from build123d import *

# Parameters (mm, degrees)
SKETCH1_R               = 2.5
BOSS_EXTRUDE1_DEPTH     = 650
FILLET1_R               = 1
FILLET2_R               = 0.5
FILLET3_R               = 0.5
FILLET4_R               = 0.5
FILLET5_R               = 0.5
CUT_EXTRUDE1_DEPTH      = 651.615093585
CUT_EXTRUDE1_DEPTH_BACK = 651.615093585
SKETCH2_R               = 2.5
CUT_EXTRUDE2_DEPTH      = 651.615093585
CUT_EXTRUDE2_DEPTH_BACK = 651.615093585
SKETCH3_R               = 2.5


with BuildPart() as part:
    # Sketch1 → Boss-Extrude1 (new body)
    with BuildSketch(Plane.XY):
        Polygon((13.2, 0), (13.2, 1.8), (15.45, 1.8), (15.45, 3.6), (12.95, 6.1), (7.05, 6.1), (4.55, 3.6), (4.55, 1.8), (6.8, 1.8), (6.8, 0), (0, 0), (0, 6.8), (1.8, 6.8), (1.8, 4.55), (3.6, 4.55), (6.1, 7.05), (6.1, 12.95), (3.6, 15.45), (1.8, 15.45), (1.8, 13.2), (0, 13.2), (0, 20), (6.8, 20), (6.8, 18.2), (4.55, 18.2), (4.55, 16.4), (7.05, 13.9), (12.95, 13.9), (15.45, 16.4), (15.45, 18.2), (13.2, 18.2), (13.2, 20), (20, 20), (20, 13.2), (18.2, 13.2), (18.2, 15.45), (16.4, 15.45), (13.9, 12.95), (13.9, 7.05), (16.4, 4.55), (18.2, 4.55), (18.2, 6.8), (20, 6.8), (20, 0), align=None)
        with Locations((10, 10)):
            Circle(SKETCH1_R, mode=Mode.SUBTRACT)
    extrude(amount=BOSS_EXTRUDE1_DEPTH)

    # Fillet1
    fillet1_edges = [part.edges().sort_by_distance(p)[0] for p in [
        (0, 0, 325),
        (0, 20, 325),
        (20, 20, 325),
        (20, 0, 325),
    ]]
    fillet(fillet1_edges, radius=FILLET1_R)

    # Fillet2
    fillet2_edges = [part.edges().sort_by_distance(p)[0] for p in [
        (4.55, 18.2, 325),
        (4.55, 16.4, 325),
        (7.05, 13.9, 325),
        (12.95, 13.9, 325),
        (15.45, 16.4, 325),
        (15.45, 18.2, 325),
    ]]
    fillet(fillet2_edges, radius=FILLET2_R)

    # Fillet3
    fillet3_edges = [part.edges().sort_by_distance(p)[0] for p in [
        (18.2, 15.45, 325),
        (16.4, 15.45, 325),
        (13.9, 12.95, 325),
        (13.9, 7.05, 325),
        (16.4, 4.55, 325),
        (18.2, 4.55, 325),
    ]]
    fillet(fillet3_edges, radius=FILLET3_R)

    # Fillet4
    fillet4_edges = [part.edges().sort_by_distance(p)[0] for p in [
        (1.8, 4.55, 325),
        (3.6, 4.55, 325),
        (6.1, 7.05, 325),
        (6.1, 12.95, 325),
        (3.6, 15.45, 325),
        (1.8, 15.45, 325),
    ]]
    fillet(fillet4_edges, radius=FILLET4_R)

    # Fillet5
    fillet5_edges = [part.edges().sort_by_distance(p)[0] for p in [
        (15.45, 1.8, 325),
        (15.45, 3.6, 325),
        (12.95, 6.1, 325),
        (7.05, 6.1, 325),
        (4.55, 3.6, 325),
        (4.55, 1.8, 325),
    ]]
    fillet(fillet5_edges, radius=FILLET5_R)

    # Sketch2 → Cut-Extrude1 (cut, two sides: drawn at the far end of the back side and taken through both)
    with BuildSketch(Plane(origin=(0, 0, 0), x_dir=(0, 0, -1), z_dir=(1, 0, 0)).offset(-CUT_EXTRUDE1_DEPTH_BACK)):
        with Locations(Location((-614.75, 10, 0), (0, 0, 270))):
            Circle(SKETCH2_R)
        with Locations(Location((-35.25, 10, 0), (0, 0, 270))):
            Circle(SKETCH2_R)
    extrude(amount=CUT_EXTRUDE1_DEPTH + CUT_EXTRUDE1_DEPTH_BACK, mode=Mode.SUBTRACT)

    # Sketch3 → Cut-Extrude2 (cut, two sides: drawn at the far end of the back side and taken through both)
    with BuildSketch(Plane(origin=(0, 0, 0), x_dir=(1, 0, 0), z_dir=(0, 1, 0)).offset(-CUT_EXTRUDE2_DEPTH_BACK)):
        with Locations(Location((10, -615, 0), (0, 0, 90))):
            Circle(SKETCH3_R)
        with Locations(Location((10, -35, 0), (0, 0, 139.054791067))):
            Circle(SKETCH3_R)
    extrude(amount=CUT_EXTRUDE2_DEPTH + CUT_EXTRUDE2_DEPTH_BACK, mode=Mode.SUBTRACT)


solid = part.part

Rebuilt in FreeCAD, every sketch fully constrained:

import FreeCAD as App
import Part
import Sketcher


def edges_at(feature, points):
    """Names of the edges that pass closest to the given points."""
    edges = feature.Shape.Edges
    near = lambda p: min(range(len(edges)), key=lambda i: edges[i].distToShape(Part.Vertex(*p))[0])
    return sorted({f"Edge{near(p) + 1}" for p in points})

doc = App.newDocument("Part")
params = doc.addObject("Spreadsheet::Sheet", "Params")
for row, (alias, value) in enumerate([
    ("sketch1_diameter", "5 mm"),
    ("sketch1_width", "6.8 mm"),
    ("sketch1_width2", "1.8 mm"),
    ("sketch1_width3", "5.9 mm"),
    ("sketch1_width4", "2.25 mm"),
    ("pad1_length", "650 mm"),
    ("fillet_radius", "1 mm"),
    ("fillet2_radius", "0.5 mm"),
    ("fillet3_radius", "0.5 mm"),
    ("fillet4_radius", "0.5 mm"),
    ("fillet5_radius", "0.5 mm"),
    ("sketch2_diameter", "5 mm"),
    ("sketch3_diameter", "5 mm"),
], start=1):
    params.set(f"A{row}", alias)
    params.set(f"B{row}", "=" + value)
    params.setAlias(f"B{row}", alias)

body = doc.addObject("PartDesign::Body", "Body")

sketch1 = body.newObject("Sketcher::SketchObject", "Sketch")
sketch1.AttachmentSupport = (doc.getObject("XY_Plane"), [""])
sketch1.MapMode = "FlatFace"
sketch1.addGeometry([
    Part.LineSegment(App.Vector(13.2, 1.8, 0), App.Vector(13.2, 0, 0)),
    Part.LineSegment(App.Vector(13.2, 0, 0), App.Vector(20, 0, 0)),
    Part.LineSegment(App.Vector(20, 0, 0), App.Vector(20, 6.8, 0)),
    Part.LineSegment(App.Vector(20, 6.8, 0), App.Vector(18.2, 6.8, 0)),
    Part.LineSegment(App.Vector(18.2, 6.8, 0), App.Vector(18.2, 4.55, 0)),
    Part.LineSegment(App.Vector(18.2, 4.55, 0), App.Vector(16.4, 4.55, 0)),
    Part.LineSegment(App.Vector(16.4, 4.55, 0), App.Vector(13.9, 7.05, 0)),
    Part.LineSegment(App.Vector(13.9, 7.05, 0), App.Vector(13.9, 12.95, 0)),
    Part.LineSegment(App.Vector(13.9, 12.95, 0), App.Vector(16.4, 15.45, 0)),
    Part.LineSegment(App.Vector(16.4, 15.45, 0), App.Vector(18.2, 15.45, 0)),
    Part.LineSegment(App.Vector(18.2, 15.45, 0), App.Vector(18.2, 13.2, 0)),
    Part.LineSegment(App.Vector(18.2, 13.2, 0), App.Vector(20, 13.2, 0)),
    Part.LineSegment(App.Vector(20, 13.2, 0), App.Vector(20, 20, 0)),
    Part.LineSegment(App.Vector(20, 20, 0), App.Vector(13.2, 20, 0)),
    Part.LineSegment(App.Vector(13.2, 20, 0), App.Vector(13.2, 18.2, 0)),
    Part.LineSegment(App.Vector(13.2, 18.2, 0), App.Vector(15.45, 18.2, 0)),
    Part.LineSegment(App.Vector(15.45, 18.2, 0), App.Vector(15.45, 16.4, 0)),
    Part.LineSegment(App.Vector(15.45, 16.4, 0), App.Vector(12.95, 13.9, 0)),
    Part.LineSegment(App.Vector(12.95, 13.9, 0), App.Vector(7.05, 13.9, 0)),
    Part.LineSegment(App.Vector(7.05, 13.9, 0), App.Vector(4.55, 16.4, 0)),
    Part.LineSegment(App.Vector(4.55, 16.4, 0), App.Vector(4.55, 18.2, 0)),
    Part.LineSegment(App.Vector(4.55, 18.2, 0), App.Vector(6.8, 18.2, 0)),
    Part.LineSegment(App.Vector(6.8, 18.2, 0), App.Vector(6.8, 20, 0)),
    Part.LineSegment(App.Vector(6.8, 20, 0), App.Vector(0, 20, 0)),
    Part.LineSegment(App.Vector(0, 20, 0), App.Vector(0, 13.2, 0)),
    Part.LineSegment(App.Vector(0, 13.2, 0), App.Vector(1.8, 13.2, 0)),
    Part.LineSegment(App.Vector(1.8, 13.2, 0), App.Vector(1.8, 15.45, 0)),
    Part.LineSegment(App.Vector(1.8, 15.45, 0), App.Vector(3.6, 15.45, 0)),
    Part.LineSegment(App.Vector(3.6, 15.45, 0), App.Vector(6.1, 12.95, 0)),
    Part.LineSegment(App.Vector(6.1, 12.95, 0), App.Vector(6.1, 7.05, 0)),
    Part.LineSegment(App.Vector(6.1, 7.05, 0), App.Vector(3.6, 4.55, 0)),
    Part.LineSegment(App.Vector(3.6, 4.55, 0), App.Vector(1.8, 4.55, 0)),
    Part.LineSegment(App.Vector(1.8, 4.55, 0), App.Vector(1.8, 6.8, 0)),
    Part.LineSegment(App.Vector(1.8, 6.8, 0), App.Vector(0, 6.8, 0)),
    Part.LineSegment(App.Vector(0, 6.8, 0), App.Vector(0, 0, 0)),
    Part.LineSegment(App.Vector(0, 0, 0), App.Vector(6.8, 0, 0)),
    Part.LineSegment(App.Vector(6.8, 0, 0), App.Vector(6.8, 1.8, 0)),
    Part.LineSegment(App.Vector(6.8, 1.8, 0), App.Vector(4.55, 1.8, 0)),
    Part.LineSegment(App.Vector(4.55, 1.8, 0), App.Vector(4.55, 3.6, 0)),
    Part.LineSegment(App.Vector(4.55, 3.6, 0), App.Vector(7.05, 6.1, 0)),
    Part.LineSegment(App.Vector(7.05, 6.1, 0), App.Vector(12.95, 6.1, 0)),
    Part.LineSegment(App.Vector(12.95, 6.1, 0), App.Vector(15.45, 3.6, 0)),
    Part.LineSegment(App.Vector(15.45, 3.6, 0), App.Vector(15.45, 1.8, 0)),
    Part.LineSegment(App.Vector(15.45, 1.8, 0), App.Vector(13.2, 1.8, 0)),
    Part.Circle(App.Vector(10, 10, 0), App.Vector(0, 0, 1), 2.5),
], False)
sketch1.addConstraint([
    Sketcher.Constraint("Coincident", 0, 2, 1, 1),
    Sketcher.Constraint("Coincident", 1, 2, 2, 1),
    Sketcher.Constraint("Coincident", 2, 2, 3, 1),
    Sketcher.Constraint("Coincident", 3, 2, 4, 1),
    Sketcher.Constraint("Coincident", 4, 2, 5, 1),
    Sketcher.Constraint("Coincident", 5, 2, 6, 1),
    Sketcher.Constraint("Coincident", 6, 2, 7, 1),
    Sketcher.Constraint("Coincident", 7, 2, 8, 1),
    Sketcher.Constraint("Coincident", 8, 2, 9, 1),
    Sketcher.Constraint("Coincident", 9, 2, 10, 1),
    Sketcher.Constraint("Coincident", 10, 2, 11, 1),
    Sketcher.Constraint("Coincident", 11, 2, 12, 1),
    Sketcher.Constraint("Coincident", 12, 2, 13, 1),
    Sketcher.Constraint("Coincident", 13, 2, 14, 1),
    Sketcher.Constraint("Coincident", 14, 2, 15, 1),
    Sketcher.Constraint("Coincident", 15, 2, 16, 1),
    Sketcher.Constraint("Coincident", 16, 2, 17, 1),
    Sketcher.Constraint("Coincident", 17, 2, 18, 1),
    Sketcher.Constraint("Coincident", 18, 2, 19, 1),
    Sketcher.Constraint("Coincident", 19, 2, 20, 1),
    Sketcher.Constraint("Coincident", 20, 2, 21, 1),
    Sketcher.Constraint("Coincident", 21, 2, 22, 1),
    Sketcher.Constraint("Coincident", 22, 2, 23, 1),
    Sketcher.Constraint("Coincident", 23, 2, 24, 1),
    Sketcher.Constraint("Coincident", 24, 2, 25, 1),
    Sketcher.Constraint("Coincident", 25, 2, 26, 1),
    Sketcher.Constraint("Coincident", 26, 2, 27, 1),
    Sketcher.Constraint("Coincident", 27, 2, 28, 1),
    Sketcher.Constraint("Coincident", 28, 2, 29, 1),
    Sketcher.Constraint("Coincident", 29, 2, 30, 1),
    Sketcher.Constraint("Coincident", 30, 2, 31, 1),
    Sketcher.Constraint("Coincident", 31, 2, 32, 1),
    Sketcher.Constraint("Coincident", 32, 2, 33, 1),
    Sketcher.Constraint("Coincident", 33, 2, 34, 1),
    Sketcher.Constraint("Coincident", 34, 2, 35, 1),
    Sketcher.Constraint("Coincident", 35, 2, 36, 1),
    Sketcher.Constraint("Coincident", 36, 2, 37, 1),
    Sketcher.Constraint("Coincident", 37, 2, 38, 1),
    Sketcher.Constraint("Coincident", 38, 2, 39, 1),
    Sketcher.Constraint("Coincident", 39, 2, 40, 1),
    Sketcher.Constraint("Coincident", 40, 2, 41, 1),
    Sketcher.Constraint("Coincident", 41, 2, 42, 1),
    Sketcher.Constraint("Coincident", 42, 2, 43, 1),
    Sketcher.Constraint("Coincident", 43, 2, 0, 1),
    Sketcher.Constraint("Vertical", 0),
    Sketcher.Constraint("Horizontal", 1),
    Sketcher.Constraint("Vertical", 2),
    Sketcher.Constraint("Horizontal", 3),
    Sketcher.Constraint("Vertical", 4),
    Sketcher.Constraint("Horizontal", 5),
    Sketcher.Constraint("Vertical", 7),
    Sketcher.Constraint("Horizontal", 9),
    Sketcher.Constraint("Vertical", 10),
    Sketcher.Constraint("Horizontal", 11),
    Sketcher.Constraint("Vertical", 12),
    Sketcher.Constraint("Horizontal", 13),
    Sketcher.Constraint("Vertical", 14),
    Sketcher.Constraint("Horizontal", 15),
    Sketcher.Constraint("Vertical", 16),
    Sketcher.Constraint("Horizontal", 18),
    Sketcher.Constraint("Vertical", 20),
    Sketcher.Constraint("Horizontal", 21),
    Sketcher.Constraint("Vertical", 22),
    Sketcher.Constraint("Horizontal", 23),
    Sketcher.Constraint("Vertical", 24),
    Sketcher.Constraint("Horizontal", 25),
    Sketcher.Constraint("Vertical", 26),
    Sketcher.Constraint("Horizontal", 27),
    Sketcher.Constraint("Vertical", 29),
    Sketcher.Constraint("Horizontal", 31),
    Sketcher.Constraint("Vertical", 32),
    Sketcher.Constraint("Horizontal", 33),
    Sketcher.Constraint("Vertical", 34),
    Sketcher.Constraint("Horizontal", 35),
    Sketcher.Constraint("Vertical", 36),
    Sketcher.Constraint("Horizontal", 37),
    Sketcher.Constraint("Vertical", 38),
    Sketcher.Constraint("Horizontal", 40),
    Sketcher.Constraint("Vertical", 42),
    Sketcher.Constraint("Horizontal", 43),
    Sketcher.Constraint("Coincident", 34, 2, -1, 1),
    Sketcher.Constraint("PointOnObject", 0, 2, -1),
    Sketcher.Constraint("PointOnObject", 23, 2, -2),
    Sketcher.Constraint("Perpendicular", 6, 8),
    Sketcher.Constraint("Parallel", 8, 17),
    Sketcher.Constraint("Perpendicular", 17, 19),
    Sketcher.Constraint("Parallel", 19, 28),
    Sketcher.Constraint("Perpendicular", 28, 30),
    Sketcher.Constraint("Parallel", 30, 39),
    Sketcher.Constraint("Perpendicular", 39, 41),
    Sketcher.Constraint("Horizontal", 16, 2, 19, 2),
    Sketcher.Constraint("Horizontal", 15, 2, 20, 2),
    Sketcher.Constraint("Horizontal", 13, 2, 22, 2),
    Sketcher.Constraint("Horizontal", 11, 2, 24, 2),
    Sketcher.Constraint("Horizontal", 9, 2, 26, 2),
    Sketcher.Constraint("Horizontal", 7, 2, 28, 2),
    Sketcher.Constraint("Horizontal", 6, 2, 29, 2),
    Sketcher.Constraint("Horizontal", 5, 2, 30, 2),
    Sketcher.Constraint("Horizontal", 3, 2, 32, 2),
    Sketcher.Constraint("Horizontal", 38, 2, 41, 2),
    Sketcher.Constraint("Horizontal", 37, 2, 42, 2),
    Sketcher.Constraint("Vertical", 5, 2, 8, 2),
    Sketcher.Constraint("Vertical", 4, 2, 9, 2),
    Sketcher.Constraint("Vertical", 2, 2, 11, 2),
    Sketcher.Constraint("Vertical", 0, 2, 13, 2),
    Sketcher.Constraint("Vertical", 27, 2, 30, 2),
    Sketcher.Constraint("Vertical", 26, 2, 31, 2),
    Sketcher.Constraint("Vertical", 22, 2, 35, 2),
    Sketcher.Constraint("Vertical", 20, 2, 37, 2),
    Sketcher.Constraint("Vertical", 18, 2, 39, 2),
    Sketcher.Constraint("Vertical", 17, 2, 40, 2),
    Sketcher.Constraint("Equal", 3, 5),
    Sketcher.Constraint("Equal", 15, 21),
    Sketcher.Constraint("Equal", 13, 23),
    Sketcher.Constraint("Equal", 11, 25),
    Sketcher.Constraint("Equal", 25, 27),
    Sketcher.Constraint("Equal", 33, 0),
    Sketcher.Constraint("Equal", 35, 2),
    Sketcher.Constraint("Equal", 43, 4),
    Sketcher.Constraint("Equal", 40, 7),
    Sketcher.Constraint("Equal", 4, 10),
    Sketcher.Constraint("Equal", 2, 12),
    Sketcher.Constraint("Equal", 0, 14),
    Sketcher.Constraint("Equal", 14, 16),
    Sketcher.Constraint("Equal", 36, 38),
    Sketcher.Constraint("Equal", 8, 17),
    Sketcher.Constraint("Diameter", 44, 5.0),
    Sketcher.Constraint("DistanceX", 1, 1, 1, 2, 6.8),
    Sketcher.Constraint("DistanceX", 3, 2, 3, 1, 1.8),
    Sketcher.Constraint("DistanceX", 18, 2, 18, 1, 5.9),
    Sketcher.Constraint("DistanceX", -1, 1, 44, 3, 10.0),
    Sketcher.Constraint("DistanceY", -1, 1, 44, 3, 10.0),
    Sketcher.Constraint("DistanceX", -1, 1, 1, 2, 20.0),
    Sketcher.Constraint("DistanceX", 15, 1, 15, 2, 2.25),
])
sketch1.setExpression("Constraints[126]", "Params.sketch1_diameter")
sketch1.setExpression("Constraints[127]", "Params.sketch1_width")
sketch1.setExpression("Constraints[128]", "Params.sketch1_width2")
sketch1.setExpression("Constraints[129]", "Params.sketch1_width3")
sketch1.setExpression("Constraints[133]", "Params.sketch1_width4")
pad1 = body.newObject("PartDesign::Pad", "Pad")
pad1.Profile = sketch1
pad1.setExpression("Length", "Params.pad1_length")
doc.recompute()

fillet = body.newObject("PartDesign::Fillet", "Fillet")
fillet.Base = (pad1, edges_at(pad1, [
    (0, 0, 325),
    (0, 20, 325),
    (20, 20, 325),
    (20, 0, 325),
]))
fillet.setExpression("Radius", "Params.fillet_radius")
doc.recompute()

fillet2 = body.newObject("PartDesign::Fillet", "Fillet001")
fillet2.Base = (fillet, edges_at(fillet, [
    (4.55, 18.2, 325),
    (4.55, 16.4, 325),
    (7.05, 13.9, 325),
    (12.95, 13.9, 325),
    (15.45, 16.4, 325),
    (15.45, 18.2, 325),
]))
fillet2.setExpression("Radius", "Params.fillet2_radius")
doc.recompute()

fillet3 = body.newObject("PartDesign::Fillet", "Fillet002")
fillet3.Base = (fillet2, edges_at(fillet2, [
    (18.2, 15.45, 325),
    (16.4, 15.45, 325),
    (13.9, 12.95, 325),
    (13.9, 7.05, 325),
    (16.4, 4.55, 325),
    (18.2, 4.55, 325),
]))
fillet3.setExpression("Radius", "Params.fillet3_radius")
doc.recompute()

fillet4 = body.newObject("PartDesign::Fillet", "Fillet003")
fillet4.Base = (fillet3, edges_at(fillet3, [
    (1.8, 4.55, 325),
    (3.6, 4.55, 325),
    (6.1, 7.05, 325),
    (6.1, 12.95, 325),
    (3.6, 15.45, 325),
    (1.8, 15.45, 325),
]))
fillet4.setExpression("Radius", "Params.fillet4_radius")
doc.recompute()

fillet5 = body.newObject("PartDesign::Fillet", "Fillet004")
fillet5.Base = (fillet4, edges_at(fillet4, [
    (15.45, 1.8, 325),
    (15.45, 3.6, 325),
    (12.95, 6.1, 325),
    (7.05, 6.1, 325),
    (4.55, 3.6, 325),
    (4.55, 1.8, 325),
]))
fillet5.setExpression("Radius", "Params.fillet5_radius")

sketch2 = body.newObject("Sketcher::SketchObject", "Sketch001")
sketch2.AttachmentSupport = (doc.getObject("YZ_Plane"), [""])
sketch2.MapMode = "FlatFace"
sketch2.addGeometry([
    Part.Circle(App.Vector(10, 614.75, 0), App.Vector(0, 0, 1), 2.5),
    Part.Circle(App.Vector(10, 35.25, 0), App.Vector(0, 0, 1), 2.5),
], False)
sketch2.addConstraint([
    Sketcher.Constraint("Equal", 0, 1),
    Sketcher.Constraint("Vertical", 0, 3, 1, 3),
    Sketcher.Constraint("Diameter", 0, 5.0),
    Sketcher.Constraint("DistanceX", -1, 1, 0, 3, 10.0),
    Sketcher.Constraint("DistanceY", 1, 3, 0, 3, 579.5),
    Sketcher.Constraint("DistanceY", -1, 1, 0, 3, 614.75),
])
sketch2.setExpression("Constraints[2]", "Params.sketch2_diameter")
pocket1 = body.newObject("PartDesign::Pocket", "Pocket")
pocket1.Profile = sketch2
pocket1.Type = "ThroughAll"
pocket1.Midplane = True

sketch3 = body.newObject("Sketcher::SketchObject", "Sketch002")
sketch3.AttachmentSupport = (doc.getObject("XZ_Plane"), [""])
sketch3.MapMode = "FlatFace"
sketch3.addGeometry([
    Part.Circle(App.Vector(10, 615, 0), App.Vector(0, 0, 1), 2.5),
    Part.Circle(App.Vector(10, 35, 0), App.Vector(0, 0, 1), 2.5),
], False)
sketch3.addConstraint([
    Sketcher.Constraint("Equal", 0, 1),
    Sketcher.Constraint("Vertical", 0, 3, 1, 3),
    Sketcher.Constraint("Diameter", 0, 5.0),
    Sketcher.Constraint("DistanceX", -1, 1, 0, 3, 10.0),
    Sketcher.Constraint("DistanceY", -1, 1, 0, 3, 615.0),
    Sketcher.Constraint("DistanceY", -1, 1, 1, 3, 35.0),
])
sketch3.setExpression("Constraints[2]", "Params.sketch3_diameter")
pocket2 = body.newObject("PartDesign::Pocket", "Pocket001")
pocket2.Profile = sketch3
pocket2.Type = "ThroughAll"
pocket2.Midplane = True

doc.recompute()
